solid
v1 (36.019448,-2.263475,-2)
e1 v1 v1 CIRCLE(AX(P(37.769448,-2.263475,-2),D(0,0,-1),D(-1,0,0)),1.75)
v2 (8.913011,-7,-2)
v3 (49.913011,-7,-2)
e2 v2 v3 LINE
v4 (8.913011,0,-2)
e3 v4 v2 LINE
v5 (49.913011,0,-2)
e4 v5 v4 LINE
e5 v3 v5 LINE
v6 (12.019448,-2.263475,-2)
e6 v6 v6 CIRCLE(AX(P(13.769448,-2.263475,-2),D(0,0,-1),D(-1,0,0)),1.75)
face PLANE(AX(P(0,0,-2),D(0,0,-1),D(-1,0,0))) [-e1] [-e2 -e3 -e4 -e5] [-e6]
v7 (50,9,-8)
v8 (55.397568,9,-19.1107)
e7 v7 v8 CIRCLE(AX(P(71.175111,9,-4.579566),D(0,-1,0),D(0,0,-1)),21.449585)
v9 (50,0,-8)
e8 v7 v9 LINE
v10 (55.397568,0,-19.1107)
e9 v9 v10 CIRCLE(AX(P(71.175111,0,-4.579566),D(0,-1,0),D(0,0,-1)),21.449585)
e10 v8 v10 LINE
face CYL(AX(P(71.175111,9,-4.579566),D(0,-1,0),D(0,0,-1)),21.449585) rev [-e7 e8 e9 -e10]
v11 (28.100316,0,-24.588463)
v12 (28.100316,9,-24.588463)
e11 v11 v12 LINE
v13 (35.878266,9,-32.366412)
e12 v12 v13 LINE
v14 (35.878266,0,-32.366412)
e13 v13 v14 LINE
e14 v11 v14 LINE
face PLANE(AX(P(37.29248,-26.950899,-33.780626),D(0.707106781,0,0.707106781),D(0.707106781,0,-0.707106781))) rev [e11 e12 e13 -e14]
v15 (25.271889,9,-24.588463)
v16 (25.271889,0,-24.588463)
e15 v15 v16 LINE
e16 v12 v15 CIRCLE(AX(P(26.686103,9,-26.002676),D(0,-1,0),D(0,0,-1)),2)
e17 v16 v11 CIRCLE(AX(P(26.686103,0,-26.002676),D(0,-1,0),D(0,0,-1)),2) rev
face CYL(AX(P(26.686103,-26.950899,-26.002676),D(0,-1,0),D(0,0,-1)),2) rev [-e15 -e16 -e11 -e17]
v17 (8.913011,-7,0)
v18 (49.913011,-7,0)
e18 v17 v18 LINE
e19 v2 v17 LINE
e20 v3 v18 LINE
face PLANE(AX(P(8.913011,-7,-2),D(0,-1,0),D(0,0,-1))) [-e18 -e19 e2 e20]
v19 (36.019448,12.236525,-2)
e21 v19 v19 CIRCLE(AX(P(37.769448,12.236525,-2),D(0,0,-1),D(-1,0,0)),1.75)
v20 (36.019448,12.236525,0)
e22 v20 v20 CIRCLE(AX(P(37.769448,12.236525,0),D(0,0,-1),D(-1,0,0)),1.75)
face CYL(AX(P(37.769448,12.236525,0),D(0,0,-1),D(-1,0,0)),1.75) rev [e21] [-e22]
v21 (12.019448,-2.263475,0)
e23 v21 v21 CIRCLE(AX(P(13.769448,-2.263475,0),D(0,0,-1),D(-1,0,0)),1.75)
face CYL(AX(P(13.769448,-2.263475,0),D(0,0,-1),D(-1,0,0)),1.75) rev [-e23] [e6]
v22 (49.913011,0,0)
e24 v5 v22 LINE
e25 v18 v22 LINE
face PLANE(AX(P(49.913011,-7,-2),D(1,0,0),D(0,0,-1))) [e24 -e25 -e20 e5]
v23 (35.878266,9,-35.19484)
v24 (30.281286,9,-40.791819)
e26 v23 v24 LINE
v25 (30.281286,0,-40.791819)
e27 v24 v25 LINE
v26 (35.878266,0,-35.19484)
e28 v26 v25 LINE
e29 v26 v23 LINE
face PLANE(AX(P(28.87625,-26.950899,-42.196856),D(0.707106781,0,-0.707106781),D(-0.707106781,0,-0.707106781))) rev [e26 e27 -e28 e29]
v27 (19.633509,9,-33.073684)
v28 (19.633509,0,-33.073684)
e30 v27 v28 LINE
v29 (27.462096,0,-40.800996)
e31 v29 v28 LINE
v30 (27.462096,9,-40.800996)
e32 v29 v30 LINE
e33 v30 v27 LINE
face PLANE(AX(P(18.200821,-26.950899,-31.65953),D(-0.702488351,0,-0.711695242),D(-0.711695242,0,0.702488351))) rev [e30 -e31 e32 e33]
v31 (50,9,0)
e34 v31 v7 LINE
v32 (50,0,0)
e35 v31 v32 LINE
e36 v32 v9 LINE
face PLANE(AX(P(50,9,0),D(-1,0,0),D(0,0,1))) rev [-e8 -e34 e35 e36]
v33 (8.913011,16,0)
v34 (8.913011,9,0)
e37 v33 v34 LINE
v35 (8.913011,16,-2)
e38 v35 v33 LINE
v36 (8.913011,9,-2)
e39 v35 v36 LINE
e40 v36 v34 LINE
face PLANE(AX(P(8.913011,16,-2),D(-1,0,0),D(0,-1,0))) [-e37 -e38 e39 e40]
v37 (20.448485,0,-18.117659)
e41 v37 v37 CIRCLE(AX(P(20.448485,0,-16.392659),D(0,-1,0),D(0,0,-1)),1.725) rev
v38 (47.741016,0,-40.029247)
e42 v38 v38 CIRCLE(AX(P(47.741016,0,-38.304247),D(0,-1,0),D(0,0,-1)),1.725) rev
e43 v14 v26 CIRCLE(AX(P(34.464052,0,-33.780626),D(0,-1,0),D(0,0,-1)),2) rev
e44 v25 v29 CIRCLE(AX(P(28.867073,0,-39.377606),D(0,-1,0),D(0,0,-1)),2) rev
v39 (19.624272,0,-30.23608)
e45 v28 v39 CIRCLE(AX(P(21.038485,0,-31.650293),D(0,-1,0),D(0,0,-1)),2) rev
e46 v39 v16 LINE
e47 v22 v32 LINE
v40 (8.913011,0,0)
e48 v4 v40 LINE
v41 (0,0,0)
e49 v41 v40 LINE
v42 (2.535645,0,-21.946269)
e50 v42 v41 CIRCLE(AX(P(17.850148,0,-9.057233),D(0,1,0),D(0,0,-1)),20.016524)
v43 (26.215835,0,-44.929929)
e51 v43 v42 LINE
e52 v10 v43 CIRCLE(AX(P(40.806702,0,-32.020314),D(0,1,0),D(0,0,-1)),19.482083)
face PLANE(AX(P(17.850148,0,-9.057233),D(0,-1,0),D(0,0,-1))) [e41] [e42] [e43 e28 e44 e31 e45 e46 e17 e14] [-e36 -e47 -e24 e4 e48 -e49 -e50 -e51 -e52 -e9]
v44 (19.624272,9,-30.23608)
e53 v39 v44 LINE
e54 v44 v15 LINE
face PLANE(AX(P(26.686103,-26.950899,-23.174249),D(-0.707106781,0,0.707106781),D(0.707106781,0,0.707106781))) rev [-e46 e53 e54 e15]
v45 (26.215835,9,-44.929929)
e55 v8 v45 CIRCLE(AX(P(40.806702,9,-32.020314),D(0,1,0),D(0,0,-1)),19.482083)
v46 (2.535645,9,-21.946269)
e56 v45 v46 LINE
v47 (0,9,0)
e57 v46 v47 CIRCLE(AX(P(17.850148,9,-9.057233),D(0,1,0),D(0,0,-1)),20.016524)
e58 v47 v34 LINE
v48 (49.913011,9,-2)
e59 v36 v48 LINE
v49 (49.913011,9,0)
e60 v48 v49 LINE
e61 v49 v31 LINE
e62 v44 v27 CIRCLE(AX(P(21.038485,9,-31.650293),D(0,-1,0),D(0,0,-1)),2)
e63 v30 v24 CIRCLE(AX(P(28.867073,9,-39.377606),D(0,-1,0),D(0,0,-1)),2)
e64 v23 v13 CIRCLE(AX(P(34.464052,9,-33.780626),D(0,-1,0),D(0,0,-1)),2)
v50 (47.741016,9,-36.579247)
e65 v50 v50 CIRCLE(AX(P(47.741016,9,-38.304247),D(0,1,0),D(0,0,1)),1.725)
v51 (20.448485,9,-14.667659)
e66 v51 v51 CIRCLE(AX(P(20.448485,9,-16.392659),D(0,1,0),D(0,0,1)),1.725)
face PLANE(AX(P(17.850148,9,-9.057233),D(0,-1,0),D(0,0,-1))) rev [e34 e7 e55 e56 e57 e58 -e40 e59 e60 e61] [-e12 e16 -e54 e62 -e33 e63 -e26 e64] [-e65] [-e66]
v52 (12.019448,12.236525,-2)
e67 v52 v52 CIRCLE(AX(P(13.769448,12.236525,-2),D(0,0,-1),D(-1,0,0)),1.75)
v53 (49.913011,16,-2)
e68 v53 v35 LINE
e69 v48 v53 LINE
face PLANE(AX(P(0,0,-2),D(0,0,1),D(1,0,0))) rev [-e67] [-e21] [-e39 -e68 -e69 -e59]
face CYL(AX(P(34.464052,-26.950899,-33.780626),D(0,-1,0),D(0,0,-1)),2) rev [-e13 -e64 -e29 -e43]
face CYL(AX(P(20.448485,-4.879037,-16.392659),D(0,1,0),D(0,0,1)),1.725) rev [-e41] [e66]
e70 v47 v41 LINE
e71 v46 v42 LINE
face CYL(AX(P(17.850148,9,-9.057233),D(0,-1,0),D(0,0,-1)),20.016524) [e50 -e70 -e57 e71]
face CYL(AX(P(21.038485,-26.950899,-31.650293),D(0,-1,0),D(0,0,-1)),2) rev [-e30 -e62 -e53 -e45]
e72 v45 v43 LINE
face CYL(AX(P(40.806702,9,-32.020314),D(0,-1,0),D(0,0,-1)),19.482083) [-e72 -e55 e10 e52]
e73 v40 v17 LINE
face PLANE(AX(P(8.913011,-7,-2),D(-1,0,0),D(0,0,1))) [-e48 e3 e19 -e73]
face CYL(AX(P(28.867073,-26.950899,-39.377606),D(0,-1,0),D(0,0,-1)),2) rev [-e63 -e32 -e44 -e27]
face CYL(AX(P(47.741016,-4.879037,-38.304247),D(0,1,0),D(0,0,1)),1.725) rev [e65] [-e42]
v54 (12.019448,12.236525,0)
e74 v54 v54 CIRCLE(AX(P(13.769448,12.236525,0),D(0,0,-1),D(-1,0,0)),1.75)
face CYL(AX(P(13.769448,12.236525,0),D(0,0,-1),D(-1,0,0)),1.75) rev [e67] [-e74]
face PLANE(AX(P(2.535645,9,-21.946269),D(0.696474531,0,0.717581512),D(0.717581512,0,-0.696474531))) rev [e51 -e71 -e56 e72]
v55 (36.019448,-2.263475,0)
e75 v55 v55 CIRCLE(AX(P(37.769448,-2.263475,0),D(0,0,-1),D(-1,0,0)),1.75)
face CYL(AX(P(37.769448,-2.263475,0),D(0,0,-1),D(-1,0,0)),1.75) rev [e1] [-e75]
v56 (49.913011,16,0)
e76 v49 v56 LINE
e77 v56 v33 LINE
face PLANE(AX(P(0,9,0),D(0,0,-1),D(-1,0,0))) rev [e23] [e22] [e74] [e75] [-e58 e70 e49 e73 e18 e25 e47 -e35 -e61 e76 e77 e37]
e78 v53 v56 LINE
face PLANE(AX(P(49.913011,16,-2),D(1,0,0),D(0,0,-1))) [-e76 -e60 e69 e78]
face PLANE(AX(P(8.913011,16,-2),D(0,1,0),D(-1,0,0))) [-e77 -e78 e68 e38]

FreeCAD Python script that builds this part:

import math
import FreeCAD as App
import Part
import Sketcher

V = App.Vector


def edges_at(feature, points):
    """Names of the edges that pass closest to the given points."""
    edges = feature.Shape.Edges
    near = lambda p: min(range(len(edges)), key=lambda i: edges[i].distToShape(Part.Vertex(*p))[0])
    return sorted({f"Edge{near(p) + 1}" for p in points})

doc = App.newDocument("Part")
body = doc.addObject("PartDesign::Body", "Body")

# Sketch on XZ plane
sketch1 = body.newObject("Sketcher::SketchObject", "Sketch")
sketch1.AttachmentSupport = (doc.getObject("XZ_Plane"), [""])
sketch1.MapMode = "FlatFace"
sketch1.addGeometry([
    Part.LineSegment(V(0, 0, 0), V(50, 0, 0)),  # 0
    Part.LineSegment(V(50, 0, 0), V(50, -8, 0)),  # 1
    Part.ArcOfCircle(Part.Circle(V(71, -5, 0), V(0, 0, 1), 21), math.radians(-171), math.radians(-137)),  # 2
    Part.ArcOfCircle(Part.Circle(V(41, -32, 0), V(0, 0, 1), 19), math.radians(-138), math.radians(42)),  # 3
    Part.LineSegment(V(26, -45, 0), V(3, -22, 0)),  # 4
    Part.ArcOfCircle(Part.Circle(V(18, -9, 0), V(0, 0, 1), 20), math.radians(153), math.radians(220)),  # 5
], False)
sketch1.addConstraint([
    Sketcher.Constraint("Coincident", 0, 2, 1, 1),
    Sketcher.Constraint("Coincident", 1, 2, 2, 1),
    Sketcher.Constraint("Coincident", 2, 2, 3, 2),
    Sketcher.Constraint("Coincident", 3, 1, 4, 1),
    Sketcher.Constraint("Coincident", 4, 2, 5, 2),
    Sketcher.Constraint("Coincident", 5, 1, 0, 1),
    Sketcher.Constraint("Horizontal", 0),
    Sketcher.Constraint("Vertical", 1),
    Sketcher.Constraint("Coincident", 5, 1, -1, 1),
    Sketcher.Constraint("DistanceX", 0, 1, 0, 2, 50.0),
    Sketcher.Constraint("DistanceY", 1, 2, 1, 1, 8.0),
    Sketcher.Constraint("Distance", 4, 33.0),
    Sketcher.Constraint("Radius", 2, 21.449585),
    Sketcher.Constraint("Radius", 3, 19.482083),
    Sketcher.Constraint("Radius", 5, 20.016524),
    Sketcher.Constraint("DistanceX", -1, 1, 3, 3, 40.806702),
    Sketcher.Constraint("DistanceY", 2, 2, -1, 1, 19.1107),
    Sketcher.Constraint("DistanceX", -1, 1, 2, 3, 71.175111),
    Sketcher.Constraint("DistanceY", 3, 1, -1, 1, 44.929929),
    Sketcher.Constraint("DistanceY", 4, 2, -1, 1, 21.946269),
])
pad1 = body.newObject("PartDesign::Pad", "Pad")
pad1.Profile = sketch1
pad1.Length = 9
pad1.Reversed = True

# Sketch on XY plane
sketch2 = body.newObject("Sketcher::SketchObject", "Sketch001")
sketch2.AttachmentSupport = (doc.getObject("XY_Plane"), [""])
sketch2.MapMode = "FlatFace"
sketch2.addGeometry([
    Part.LineSegment(V(9, 0, 0), V(9, -7, 0)),  # 0
    Part.LineSegment(V(9, -7, 0), V(50, -7, 0)),  # 1
    Part.LineSegment(V(50, -7, 0), V(50, 0, 0)),  # 2
    Part.LineSegment(V(50, 0, 0), V(9, 0, 0)),  # 3
    Part.LineSegment(V(9, 16, 0), V(9, 9, 0)),  # 4
    Part.LineSegment(V(9, 9, 0), V(50, 9, 0)),  # 5
    Part.LineSegment(V(50, 9, 0), V(50, 16, 0)),  # 6
    Part.LineSegment(V(50, 16, 0), V(9, 16, 0)),  # 7
], False)
sketch2.addConstraint([
    Sketcher.Constraint("Coincident", 0, 2, 1, 1),
    Sketcher.Constraint("Coincident", 1, 2, 2, 1),
    Sketcher.Constraint("Coincident", 2, 2, 3, 1),
    Sketcher.Constraint("Coincident", 3, 2, 0, 1),
    Sketcher.Constraint("Coincident", 4, 2, 5, 1),
    Sketcher.Constraint("Coincident", 5, 2, 6, 1),
    Sketcher.Constraint("Coincident", 6, 2, 7, 1),
    Sketcher.Constraint("Coincident", 7, 2, 4, 1),
    Sketcher.Constraint("Vertical", 0),
    Sketcher.Constraint("Horizontal", 1),
    Sketcher.Constraint("Vertical", 2),
    Sketcher.Constraint("Horizontal", 3),
    Sketcher.Constraint("Vertical", 4),
    Sketcher.Constraint("Horizontal", 5),
    Sketcher.Constraint("Vertical", 6),
    Sketcher.Constraint("Horizontal", 7),
    Sketcher.Constraint("PointOnObject", 2, 2, -1),
    Sketcher.Constraint("Vertical", 3, 2, 4, 2),
    Sketcher.Constraint("Vertical", 2, 2, 5, 2),
    Sketcher.Constraint("Equal", 2, 4),
    Sketcher.Constraint("DistanceX", 1, 1, 1, 2, 41.0),
    Sketcher.Constraint("DistanceY", 0, 2, 0, 1, 7.0),
    Sketcher.Constraint("DistanceY", -1, 1, 4, 2, 9.0),
    Sketcher.Constraint("DistanceX", -1, 1, 0, 2, 8.913011),
])
pad2 = body.newObject("PartDesign::Pad", "Pad001")
pad2.Profile = sketch2
pad2.Length = 2
pad2.Reversed = True

# Sketch on XY plane
sketch3 = body.newObject("Sketcher::SketchObject", "Sketch002")
sketch3.AttachmentSupport = (doc.getObject("XY_Plane"), [""])
sketch3.MapMode = "FlatFace"
sketch3.AttachmentOffset = App.Placement(V(0, 0, -2), App.Rotation())
sketch3.addGeometry([
    Part.Circle(V(13.8, -2.3, 0), V(0, 0, 1), 1.8),
    Part.Circle(V(37.8, -2.3, 0), V(0, 0, 1), 1.8),
    Part.Circle(V(37.8, 12.2, 0), V(0, 0, 1), 1.8),
    Part.Circle(V(13.8, 12.2, 0), V(0, 0, 1), 1.8),
], False)
sketch3.addConstraint([
    Sketcher.Constraint("Equal", 0, 1),
    Sketcher.Constraint("Equal", 1, 2),
    Sketcher.Constraint("Equal", 2, 3),
    Sketcher.Constraint("Horizontal", 0, 3, 1, 3),
    Sketcher.Constraint("Horizontal", 2, 3, 3, 3),
    Sketcher.Constraint("Vertical", 1, 3, 2, 3),
    Sketcher.Constraint("Vertical", 0, 3, 3, 3),
    Sketcher.Constraint("Diameter", 0, 3.5),
    Sketcher.Constraint("DistanceX", 0, 3, 1, 3, 24.0),
    Sketcher.Constraint("DistanceY", 1, 3, 2, 3, 14.5),
    Sketcher.Constraint("DistanceX", -1, 1, 0, 3, 13.769448),
    Sketcher.Constraint("DistanceY", 0, 3, -1, 1, 2.263475),
])
pocket1 = body.newObject("PartDesign::Pocket", "Pocket")
pocket1.Profile = sketch3
pocket1.Length = 2
pocket1.Reversed = True

# Sketch on XZ plane
sketch4 = body.newObject("Sketcher::SketchObject", "Sketch003")
sketch4.AttachmentSupport = (doc.getObject("XZ_Plane"), [""])
sketch4.MapMode = "FlatFace"
sketch4.AttachmentOffset = App.Placement(V(0, 0, -9), App.Rotation())
sketch4.addGeometry([
    Part.Circle(V(20.4, -16.4, 0), V(0, 0, 1), 1.7),
    Part.Circle(V(47.7, -38.3, 0), V(0, 0, 1), 1.7),
], False)
sketch4.addConstraint([
    Sketcher.Constraint("Equal", 0, 1),
    Sketcher.Constraint("Diameter", 0, 3.45),
    Sketcher.Constraint("DistanceY", 0, 3, -1, 1, 16.392659),
    Sketcher.Constraint("DistanceX", 0, 3, 1, 3, 27.292532),
    Sketcher.Constraint("DistanceY", 1, 3, 0, 3, 21.911589),
    Sketcher.Constraint("DistanceX", -1, 1, 0, 3, 20.448485),
])
pocket2 = body.newObject("PartDesign::Pocket", "Pocket001")
pocket2.Profile = sketch4
pocket2.Length = 9
pocket2.Reversed = True

# Sketch on XZ plane
sketch5 = body.newObject("Sketcher::SketchObject", "Sketch004")
sketch5.AttachmentSupport = (doc.getObject("XZ_Plane"), [""])
sketch5.MapMode = "FlatFace"
sketch5.AttachmentOffset = App.Placement(V(0, 0, -9), App.Rotation())
sketch5.addGeometry([
    Part.LineSegment(V(28.87625, -42.196856, 0), V(18.200821, -31.65953, 0)),
    Part.LineSegment(V(18.200821, -31.65953, 0), V(26.686103, -23.174249, 0)),
    Part.LineSegment(V(26.686103, -23.174249, 0), V(37.29248, -33.780626, 0)),
    Part.LineSegment(V(37.29248, -33.780626, 0), V(28.87625, -42.196856, 0)),
], False)
sketch5.addConstraint([
    Sketcher.Constraint("Coincident", 0, 2, 1, 1),
    Sketcher.Constraint("Coincident", 1, 2, 2, 1),
    Sketcher.Constraint("Coincident", 2, 2, 3, 1),
    Sketcher.Constraint("Coincident", 3, 2, 0, 1),
    Sketcher.Constraint("Distance", 0, 15.0),
    Sketcher.Constraint("Distance", 1, 12.0),
    Sketcher.Constraint("DistanceX", -1, 1, 0, 2, 18.200821),
    Sketcher.Constraint("DistanceY", 0, 2, -1, 1, 31.65953),
    Sketcher.Constraint("DistanceY", 1, 2, -1, 1, 23.174249),
    Sketcher.Constraint("DistanceX", -1, 1, 2, 2, 37.29248),
    Sketcher.Constraint("DistanceX", -1, 1, 3, 2, 28.87625),
    Sketcher.Constraint("DistanceY", 3, 2, 2, 2, 8.41623),
])
pocket3 = body.newObject("PartDesign::Pocket", "Pocket002")
pocket3.Profile = sketch5
pocket3.Length = 9
pocket3.Reversed = True
doc.recompute()

fillet = body.newObject("PartDesign::Fillet", "Fillet")
fillet.Base = (pocket3, edges_at(pocket3, [
    (18.201, 4.5, -31.66),
    (26.686, 4.5, -23.174),
    (37.292, 4.5, -33.781),
    (28.876, 4.5, -42.197),
]))
fillet.Radius = 2

doc.recompute()
